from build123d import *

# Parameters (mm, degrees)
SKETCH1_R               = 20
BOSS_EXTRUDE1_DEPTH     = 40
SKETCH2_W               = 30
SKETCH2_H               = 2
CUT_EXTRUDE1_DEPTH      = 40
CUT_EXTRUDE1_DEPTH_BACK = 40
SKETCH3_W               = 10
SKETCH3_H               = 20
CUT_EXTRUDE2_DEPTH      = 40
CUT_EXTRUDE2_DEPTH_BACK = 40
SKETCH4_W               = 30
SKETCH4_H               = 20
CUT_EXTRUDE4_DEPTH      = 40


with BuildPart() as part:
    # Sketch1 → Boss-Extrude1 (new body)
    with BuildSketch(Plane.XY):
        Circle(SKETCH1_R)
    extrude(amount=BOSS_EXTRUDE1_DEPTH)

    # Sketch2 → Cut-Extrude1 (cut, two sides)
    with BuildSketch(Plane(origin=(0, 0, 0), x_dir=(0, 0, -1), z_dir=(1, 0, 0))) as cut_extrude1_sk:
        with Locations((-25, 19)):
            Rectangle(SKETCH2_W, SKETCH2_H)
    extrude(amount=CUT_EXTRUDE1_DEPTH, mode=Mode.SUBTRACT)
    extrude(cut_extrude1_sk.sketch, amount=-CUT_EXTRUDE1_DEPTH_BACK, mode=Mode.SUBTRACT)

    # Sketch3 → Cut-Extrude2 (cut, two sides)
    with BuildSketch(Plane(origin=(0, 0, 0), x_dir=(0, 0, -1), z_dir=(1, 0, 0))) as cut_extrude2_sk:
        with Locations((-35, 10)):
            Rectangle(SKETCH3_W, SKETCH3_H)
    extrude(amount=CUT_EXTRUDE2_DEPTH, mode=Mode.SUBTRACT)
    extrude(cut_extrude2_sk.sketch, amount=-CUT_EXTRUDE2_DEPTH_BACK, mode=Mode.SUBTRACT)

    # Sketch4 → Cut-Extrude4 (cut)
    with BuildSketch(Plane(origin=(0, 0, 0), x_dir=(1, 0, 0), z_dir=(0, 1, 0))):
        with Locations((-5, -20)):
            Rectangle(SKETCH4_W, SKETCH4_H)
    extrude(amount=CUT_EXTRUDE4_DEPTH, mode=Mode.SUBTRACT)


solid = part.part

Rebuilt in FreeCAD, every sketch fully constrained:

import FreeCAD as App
import Part
import Sketcher
from FreeCAD import Vector
Q = App.Units.Quantity


def add_polygon(sketch, points):
    """Adds a closed chain of lines whose ends are joined by coincident constraints."""
    first, n = sketch.GeometryCount, len(points)
    for a, b in zip(points, points[1:] + points[:1]):
        sketch.addGeometry(Part.LineSegment(App.Vector(*a, 0), App.Vector(*b, 0)), False)
    for i in range(n):
        sketch.addConstraint(Sketcher.Constraint("Coincident", first + i, 2, first + (i + 1) % n, 1))

doc = App.newDocument("Part")
body = doc.addObject("PartDesign::Body", "Body")

sketch1 = body.newObject("Sketcher::SketchObject", "Sketch")
sketch1.AttachmentSupport = (doc.getObject("XY_Plane"), [""])
sketch1.MapMode = "FlatFace"
sketch1.addGeometry(Part.Circle(Vector(0, 0, 0), Vector(0, 0, 1), 20), False)
sketch1.addConstraint([
    Sketcher.Constraint("Coincident", 0, 3, -1, 1),
    Sketcher.Constraint("Diameter", 0, Q("40 mm")),
])
pad1 = body.newObject("PartDesign::Pad", "Pad")
pad1.Profile = sketch1
pad1.Length = 40

sketch2 = body.newObject("Sketcher::SketchObject", "Sketch001")
sketch2.AttachmentSupport = (doc.getObject("YZ_Plane"), [""])
sketch2.MapMode = "FlatFace"
add_polygon(sketch2, [(20, 40), (18, 40), (18, 10), (20, 10)])
sketch2.addConstraint([
    Sketcher.Constraint("Horizontal", 0),
    Sketcher.Constraint("Vertical", 1),
    Sketcher.Constraint("Horizontal", 2),
    Sketcher.Constraint("Vertical", 3),
    Sketcher.Constraint("DistanceX", 0, 2, 0, 1, Q("2 mm")),
    Sketcher.Constraint("DistanceY", 1, 2, 1, 1, Q("30 mm")),
    Sketcher.Constraint("DistanceX", -1, 1, 0, 2, Q("18 mm")),
    Sketcher.Constraint("DistanceY", -1, 1, 0, 2, Q("40 mm")),
])
pocket1 = body.newObject("PartDesign::Pocket", "Pocket")
pocket1.Profile = sketch2
pocket1.Type = "ThroughAll"
pocket1.Midplane = True

sketch3 = body.newObject("Sketcher::SketchObject", "Sketch002")
sketch3.AttachmentSupport = (doc.getObject("YZ_Plane"), [""])
sketch3.MapMode = "FlatFace"
add_polygon(sketch3, [(20, 40), (0, 40), (0, 30), (20, 30)])
sketch3.addConstraint([
    Sketcher.Constraint("Horizontal", 0),
    Sketcher.Constraint("Vertical", 1),
    Sketcher.Constraint("Horizontal", 2),
    Sketcher.Constraint("Vertical", 3),
    Sketcher.Constraint("PointOnObject", 0, 2, -2),
    Sketcher.Constraint("DistanceX", 0, 2, 0, 1, Q("20 mm")),
    Sketcher.Constraint("DistanceY", 1, 2, 1, 1, Q("10 mm")),
    Sketcher.Constraint("DistanceY", -1, 1, 0, 2, Q("40 mm")),
])
pocket2 = body.newObject("PartDesign::Pocket", "Pocket001")
pocket2.Profile = sketch3
pocket2.Type = "ThroughAll"
pocket2.Midplane = True

sketch4 = body.newObject("Sketcher::SketchObject", "Sketch003")
sketch4.AttachmentSupport = (doc.getObject("XZ_Plane"), [""])
sketch4.MapMode = "FlatFace"
add_polygon(sketch4, [(-20, 10), (-20, 30), (10, 30), (10, 10)])
sketch4.addConstraint([
    Sketcher.Constraint("Vertical", 0),
    Sketcher.Constraint("Horizontal", 1),
    Sketcher.Constraint("Vertical", 2),
    Sketcher.Constraint("Horizontal", 3),
    Sketcher.Constraint("DistanceX", 1, 1, 1, 2, Q("30 mm")),
    Sketcher.Constraint("DistanceY", 0, 1, 0, 2, Q("20 mm")),
    Sketcher.Constraint("DistanceX", 0, 2, -1, 1, Q("20 mm")),
    Sketcher.Constraint("DistanceY", -1, 1, 0, 2, Q("30 mm")),
])
pocket3 = body.newObject("PartDesign::Pocket", "Pocket002")
pocket3.Profile = sketch4
pocket3.Length = 40

doc.recompute()
